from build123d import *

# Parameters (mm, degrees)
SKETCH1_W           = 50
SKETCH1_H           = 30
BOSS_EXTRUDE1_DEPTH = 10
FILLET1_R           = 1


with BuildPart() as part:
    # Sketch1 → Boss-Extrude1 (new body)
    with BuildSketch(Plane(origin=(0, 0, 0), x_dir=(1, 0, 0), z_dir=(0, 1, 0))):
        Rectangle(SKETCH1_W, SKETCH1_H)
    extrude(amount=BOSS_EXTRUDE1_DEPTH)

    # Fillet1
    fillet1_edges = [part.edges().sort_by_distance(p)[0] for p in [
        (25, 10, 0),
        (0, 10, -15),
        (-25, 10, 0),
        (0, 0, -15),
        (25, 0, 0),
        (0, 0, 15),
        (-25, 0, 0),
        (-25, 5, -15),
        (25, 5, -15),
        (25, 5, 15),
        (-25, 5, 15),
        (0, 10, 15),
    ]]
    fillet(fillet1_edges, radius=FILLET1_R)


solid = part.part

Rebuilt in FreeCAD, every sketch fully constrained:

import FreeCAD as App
import Part
import Sketcher
from FreeCAD import Vector
Q = App.Units.Quantity


def add_polygon(sketch, points):
    """Adds a closed chain of lines whose ends are joined by coincident constraints."""
    first, n = sketch.GeometryCount, len(points)
    for a, b in zip(points, points[1:] + points[:1]):
        sketch.addGeometry(Part.LineSegment(App.Vector(*a, 0), App.Vector(*b, 0)), False)
    for i in range(n):
        sketch.addConstraint(Sketcher.Constraint("Coincident", first + i, 2, first + (i + 1) % n, 1))

doc = App.newDocument("Part")
body = doc.addObject("PartDesign::Body", "Body")

# Sketch on XZ plane
sketch1 = body.newObject("Sketcher::SketchObject", "Sketch")
sketch1.AttachmentSupport = (doc.getObject("XZ_Plane"), [""])
sketch1.MapMode = "FlatFace"
add_polygon(sketch1, [(-25, -15), (-25, 15), (25, 15), (25, -15)])  # lines 0-3
sketch1.addConstraint(Sketcher.Constraint("Vertical", 0))
sketch1.addConstraint(Sketcher.Constraint("Horizontal", 1))
sketch1.addConstraint(Sketcher.Constraint("Vertical", 2))
sketch1.addConstraint(Sketcher.Constraint("Horizontal", 3))
sketch1.addConstraint(Sketcher.Constraint("Symmetric", 0, 2, 2, 2, -1, 1))
sketch1.addConstraint(Sketcher.Constraint("DistanceX", 1, 1, 1, 2, Q("50 mm")))
sketch1.addConstraint(Sketcher.Constraint("DistanceY", 0, 1, 0, 2, Q("30 mm")))
pad1 = body.newObject("PartDesign::Pad", "Pad")
pad1.Profile = sketch1
pad1.Length = 10
pad1.Reversed = True
doc.recompute()

fillet = body.newObject("PartDesign::Fillet", "Fillet")
fillet.Base = (pad1, ["Edge1"])
fillet.UseAllEdges = True
fillet.Radius = 1

doc.recompute()
